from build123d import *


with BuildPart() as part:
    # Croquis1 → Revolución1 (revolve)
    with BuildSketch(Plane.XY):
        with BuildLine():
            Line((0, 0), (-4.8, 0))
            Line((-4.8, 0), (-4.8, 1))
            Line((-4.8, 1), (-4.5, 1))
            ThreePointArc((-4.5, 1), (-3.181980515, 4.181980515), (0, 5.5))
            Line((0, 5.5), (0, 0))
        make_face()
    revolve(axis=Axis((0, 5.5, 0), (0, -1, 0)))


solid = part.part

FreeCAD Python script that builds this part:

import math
import FreeCAD as App
import Part
import Sketcher
from FreeCAD import Vector
Q = App.Units.Quantity

doc = App.newDocument("Part")
body = doc.addObject("PartDesign::Body", "Body")

# Sketch on XY plane
sketch1 = body.newObject("Sketcher::SketchObject", "Sketch")
sketch1.AttachmentSupport = (doc.getObject("XY_Plane"), [""])
sketch1.MapMode = "FlatFace"
sketch1.addGeometry([
    Part.LineSegment(Vector(-4.8, 0, 0), Vector(0, 0, 0)),  # 0
    Part.LineSegment(Vector(0, 0, 0), Vector(0, 5.5, 0)),  # 1
    Part.ArcOfCircle(Part.Circle(Vector(0, 1, 0), Vector(0, 0, 1), 4.5), math.radians(90), math.radians(180)),  # 2
    Part.LineSegment(Vector(-4.5, 1, 0), Vector(-4.8, 1, 0)),  # 3
    Part.LineSegment(Vector(-4.8, 1, 0), Vector(-4.8, 0, 0)),  # 4
], False)
sketch1.addConstraint([
    Sketcher.Constraint("Coincident", 0, 2, 1, 1),
    Sketcher.Constraint("Coincident", 1, 2, 2, 1),
    Sketcher.Constraint("Coincident", 2, 2, 3, 1),
    Sketcher.Constraint("Coincident", 3, 2, 4, 1),
    Sketcher.Constraint("Coincident", 4, 2, 0, 1),
    Sketcher.Constraint("Horizontal", 0),
    Sketcher.Constraint("Vertical", 1),
    Sketcher.Constraint("Horizontal", 3),
    Sketcher.Constraint("Vertical", 4),
    Sketcher.Constraint("Coincident", 0, 2, -1, 1),
    Sketcher.Constraint("PointOnObject", 2, 3, -2),
    Sketcher.Constraint("Radius", 2, Q("4.5 mm")),
    Sketcher.Constraint("DistanceY", 4, 2, 4, 1, Q("1 mm")),
    Sketcher.Constraint("DistanceX", 0, 1, 0, 2, Q("4.8 mm")),
    Sketcher.Constraint("DistanceY", 1, 1, 1, 2, Q("5.5 mm")),
])
revolution = body.newObject("PartDesign::Revolution", "Revolution")
revolution.Profile = sketch1
revolution.ReferenceAxis = (sketch1, ["V_Axis"])
revolution.Angle = 360

doc.recompute()
